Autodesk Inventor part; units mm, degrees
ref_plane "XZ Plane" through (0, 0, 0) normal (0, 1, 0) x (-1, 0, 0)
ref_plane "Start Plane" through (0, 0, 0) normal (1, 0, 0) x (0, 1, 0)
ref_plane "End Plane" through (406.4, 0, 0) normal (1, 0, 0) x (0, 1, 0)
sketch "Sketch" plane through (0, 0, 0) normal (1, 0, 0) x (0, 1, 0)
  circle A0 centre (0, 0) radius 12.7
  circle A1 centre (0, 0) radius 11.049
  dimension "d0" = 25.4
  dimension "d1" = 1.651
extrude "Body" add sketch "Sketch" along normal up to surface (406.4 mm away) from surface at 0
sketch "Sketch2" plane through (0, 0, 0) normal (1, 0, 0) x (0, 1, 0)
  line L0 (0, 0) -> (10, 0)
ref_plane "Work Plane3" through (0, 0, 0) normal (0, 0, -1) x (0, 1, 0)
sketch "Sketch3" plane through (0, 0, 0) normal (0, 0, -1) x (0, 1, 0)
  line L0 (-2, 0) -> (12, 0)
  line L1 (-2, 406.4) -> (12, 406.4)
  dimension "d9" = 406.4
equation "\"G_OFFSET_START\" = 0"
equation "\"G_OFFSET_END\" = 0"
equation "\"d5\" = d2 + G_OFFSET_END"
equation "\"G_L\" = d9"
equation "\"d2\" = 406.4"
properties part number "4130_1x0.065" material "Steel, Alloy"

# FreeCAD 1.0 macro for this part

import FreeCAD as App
import Part
import Sketcher
Q = App.Units.Quantity

doc = App.newDocument("Part")
body = doc.addObject("PartDesign::Body", "Body")

# Sketch on YZ plane
sketch1 = doc.addObject("Sketcher::SketchObject", "Sketch")
body.addObject(sketch1)
sketch1.AttachmentSupport = (doc.YZ_Plane, [""])
sketch1.MapMode = "FlatFace"
sketch1.addGeometry([
    Part.Circle(App.Vector(0, 0, 0), App.Vector(0, 0, 1), 13),
    Part.Circle(App.Vector(0, 0, 0), App.Vector(0, 0, 1), 11),
], False)
sketch1.addConstraint([
    Sketcher.Constraint("Coincident", 0, 3, -1, 1),
    Sketcher.Constraint("Coincident", 1, 3, -1, 1),
    Sketcher.Constraint("Diameter", 0, Q("1 in")),
    Sketcher.Constraint("Diameter", 1, Q("0.87 in")),
])
pad1 = doc.addObject("PartDesign::Pad", "Pad")
body.addObject(pad1)
pad1.Profile = sketch1
pad1.Length = Q("16 in")

doc.recompute()
